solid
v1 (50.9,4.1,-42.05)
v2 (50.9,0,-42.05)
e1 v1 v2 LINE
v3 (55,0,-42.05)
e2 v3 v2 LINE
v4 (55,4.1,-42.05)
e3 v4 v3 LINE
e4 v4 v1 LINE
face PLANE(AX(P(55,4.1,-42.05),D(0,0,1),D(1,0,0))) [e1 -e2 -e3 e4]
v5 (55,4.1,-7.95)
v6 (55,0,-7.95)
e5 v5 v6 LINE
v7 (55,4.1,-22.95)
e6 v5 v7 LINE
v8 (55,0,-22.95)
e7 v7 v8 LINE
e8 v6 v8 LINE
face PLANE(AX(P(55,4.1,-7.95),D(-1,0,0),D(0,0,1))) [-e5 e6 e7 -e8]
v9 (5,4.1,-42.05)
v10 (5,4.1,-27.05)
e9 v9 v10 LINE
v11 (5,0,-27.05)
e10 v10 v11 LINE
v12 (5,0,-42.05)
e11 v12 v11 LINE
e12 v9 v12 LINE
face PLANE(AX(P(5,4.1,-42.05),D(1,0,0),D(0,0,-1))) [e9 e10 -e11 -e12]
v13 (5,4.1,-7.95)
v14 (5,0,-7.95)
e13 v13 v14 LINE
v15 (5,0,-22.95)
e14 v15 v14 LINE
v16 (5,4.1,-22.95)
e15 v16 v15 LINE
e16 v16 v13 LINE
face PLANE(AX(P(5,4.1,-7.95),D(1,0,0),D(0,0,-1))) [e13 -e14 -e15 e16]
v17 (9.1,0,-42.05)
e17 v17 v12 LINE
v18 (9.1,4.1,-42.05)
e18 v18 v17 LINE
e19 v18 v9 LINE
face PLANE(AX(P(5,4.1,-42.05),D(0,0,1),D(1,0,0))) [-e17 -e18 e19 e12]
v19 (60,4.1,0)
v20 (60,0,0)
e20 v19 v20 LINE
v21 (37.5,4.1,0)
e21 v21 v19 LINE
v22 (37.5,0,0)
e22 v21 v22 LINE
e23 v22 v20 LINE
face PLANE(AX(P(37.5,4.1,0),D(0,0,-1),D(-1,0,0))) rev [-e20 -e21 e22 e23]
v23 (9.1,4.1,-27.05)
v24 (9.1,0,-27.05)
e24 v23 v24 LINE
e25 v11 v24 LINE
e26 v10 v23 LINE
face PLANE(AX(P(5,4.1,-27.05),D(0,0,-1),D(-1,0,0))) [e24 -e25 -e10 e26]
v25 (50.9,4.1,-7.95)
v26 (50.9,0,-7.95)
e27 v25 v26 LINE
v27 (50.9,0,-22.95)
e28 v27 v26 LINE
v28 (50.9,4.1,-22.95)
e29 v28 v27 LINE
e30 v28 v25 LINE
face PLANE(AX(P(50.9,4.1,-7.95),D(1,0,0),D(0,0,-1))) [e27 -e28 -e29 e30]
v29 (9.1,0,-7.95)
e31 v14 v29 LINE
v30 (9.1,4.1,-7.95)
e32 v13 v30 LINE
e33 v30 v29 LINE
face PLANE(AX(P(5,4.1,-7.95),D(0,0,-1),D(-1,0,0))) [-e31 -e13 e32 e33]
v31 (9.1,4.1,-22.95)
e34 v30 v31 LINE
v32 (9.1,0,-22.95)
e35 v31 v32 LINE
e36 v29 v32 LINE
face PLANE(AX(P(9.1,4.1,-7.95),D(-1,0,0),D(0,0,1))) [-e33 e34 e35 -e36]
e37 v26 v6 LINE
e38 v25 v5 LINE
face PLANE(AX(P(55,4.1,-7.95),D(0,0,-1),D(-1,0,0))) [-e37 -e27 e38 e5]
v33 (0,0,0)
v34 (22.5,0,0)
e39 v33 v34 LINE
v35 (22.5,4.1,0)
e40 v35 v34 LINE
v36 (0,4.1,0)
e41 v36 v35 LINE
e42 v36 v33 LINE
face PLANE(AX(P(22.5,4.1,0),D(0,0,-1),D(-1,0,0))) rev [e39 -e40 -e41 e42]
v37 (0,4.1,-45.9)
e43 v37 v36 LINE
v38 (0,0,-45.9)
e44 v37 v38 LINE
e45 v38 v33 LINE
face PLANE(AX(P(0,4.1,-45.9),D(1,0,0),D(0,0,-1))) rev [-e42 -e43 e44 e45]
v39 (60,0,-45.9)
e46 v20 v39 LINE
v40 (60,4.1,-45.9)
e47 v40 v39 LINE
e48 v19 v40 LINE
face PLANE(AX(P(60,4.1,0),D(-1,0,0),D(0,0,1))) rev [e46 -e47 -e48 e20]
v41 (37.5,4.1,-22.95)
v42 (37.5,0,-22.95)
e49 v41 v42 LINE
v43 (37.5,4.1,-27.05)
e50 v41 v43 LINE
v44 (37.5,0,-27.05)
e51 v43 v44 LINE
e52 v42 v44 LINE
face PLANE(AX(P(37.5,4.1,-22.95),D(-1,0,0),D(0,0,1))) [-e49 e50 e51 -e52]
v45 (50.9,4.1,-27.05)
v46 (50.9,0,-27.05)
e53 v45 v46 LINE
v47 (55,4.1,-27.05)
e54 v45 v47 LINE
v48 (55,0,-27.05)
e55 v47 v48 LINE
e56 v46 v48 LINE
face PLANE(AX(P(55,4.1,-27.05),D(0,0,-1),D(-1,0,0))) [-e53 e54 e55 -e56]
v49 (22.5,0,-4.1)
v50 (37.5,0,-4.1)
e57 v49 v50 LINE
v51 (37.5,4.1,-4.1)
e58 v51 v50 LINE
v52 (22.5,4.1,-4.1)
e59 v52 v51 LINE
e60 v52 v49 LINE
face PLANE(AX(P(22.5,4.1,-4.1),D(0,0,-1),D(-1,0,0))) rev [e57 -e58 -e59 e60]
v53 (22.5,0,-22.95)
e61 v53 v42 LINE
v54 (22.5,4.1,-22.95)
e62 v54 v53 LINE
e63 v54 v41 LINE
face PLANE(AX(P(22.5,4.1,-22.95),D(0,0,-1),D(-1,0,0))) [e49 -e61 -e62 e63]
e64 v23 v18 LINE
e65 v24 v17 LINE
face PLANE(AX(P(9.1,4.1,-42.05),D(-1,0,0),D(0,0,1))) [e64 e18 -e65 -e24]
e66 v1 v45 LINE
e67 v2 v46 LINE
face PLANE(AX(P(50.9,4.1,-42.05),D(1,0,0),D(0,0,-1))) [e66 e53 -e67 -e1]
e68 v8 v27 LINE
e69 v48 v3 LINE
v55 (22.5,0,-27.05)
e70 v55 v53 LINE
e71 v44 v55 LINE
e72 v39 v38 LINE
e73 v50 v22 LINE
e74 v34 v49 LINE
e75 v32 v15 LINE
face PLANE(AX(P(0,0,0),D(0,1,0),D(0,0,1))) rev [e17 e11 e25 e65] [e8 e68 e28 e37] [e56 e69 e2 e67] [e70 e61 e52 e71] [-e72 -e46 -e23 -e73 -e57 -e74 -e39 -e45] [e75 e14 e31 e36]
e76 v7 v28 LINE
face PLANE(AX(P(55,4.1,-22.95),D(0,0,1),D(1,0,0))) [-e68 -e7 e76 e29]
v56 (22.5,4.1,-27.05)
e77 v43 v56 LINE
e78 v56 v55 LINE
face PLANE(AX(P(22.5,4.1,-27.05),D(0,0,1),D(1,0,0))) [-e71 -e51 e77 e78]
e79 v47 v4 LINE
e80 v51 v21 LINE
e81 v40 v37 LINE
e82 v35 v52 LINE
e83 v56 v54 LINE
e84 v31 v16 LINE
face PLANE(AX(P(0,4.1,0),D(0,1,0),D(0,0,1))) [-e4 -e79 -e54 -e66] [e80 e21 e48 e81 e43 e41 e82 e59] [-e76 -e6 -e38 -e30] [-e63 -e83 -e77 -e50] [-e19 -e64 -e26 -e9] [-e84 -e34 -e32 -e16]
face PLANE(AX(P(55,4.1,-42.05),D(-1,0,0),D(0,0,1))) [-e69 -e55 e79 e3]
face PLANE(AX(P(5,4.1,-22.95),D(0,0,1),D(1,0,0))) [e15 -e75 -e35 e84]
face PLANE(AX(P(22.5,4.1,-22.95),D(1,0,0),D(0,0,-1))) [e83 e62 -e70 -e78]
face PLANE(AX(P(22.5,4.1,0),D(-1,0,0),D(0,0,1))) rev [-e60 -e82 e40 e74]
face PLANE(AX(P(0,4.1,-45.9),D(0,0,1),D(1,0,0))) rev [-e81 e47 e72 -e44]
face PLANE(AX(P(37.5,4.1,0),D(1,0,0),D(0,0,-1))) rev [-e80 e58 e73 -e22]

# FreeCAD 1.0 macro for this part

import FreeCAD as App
import Part
import Sketcher
from FreeCAD import Vector

doc = App.newDocument("Part")
body = doc.addObject("PartDesign::Body", "Body")

sketch1 = body.newObject("Sketcher::SketchObject", "Sketch")
sketch1.AttachmentSupport = (doc.getObject("XZ_Plane"), [""])
sketch1.MapMode = "FlatFace"
sketch1.addGeometry(Part.LineSegment(Vector(0, -45.9, 0), Vector(0, 0, 0)), False)
sketch1.addGeometry(Part.LineSegment(Vector(0, 0, 0), Vector(22.5, 0, 0)), False)
sketch1.addGeometry(Part.LineSegment(Vector(22.5, 0, 0), Vector(22.5, -4.1, 0)), False)
sketch1.addGeometry(Part.LineSegment(Vector(22.5, -4.1, 0), Vector(37.5, -4.1, 0)), False)
sketch1.addGeometry(Part.LineSegment(Vector(37.5, -4.1, 0), Vector(37.5, 0, 0)), False)
sketch1.addGeometry(Part.LineSegment(Vector(37.5, 0, 0), Vector(60, 0, 0)), False)
sketch1.addGeometry(Part.LineSegment(Vector(60, 0, 0), Vector(60, -45.9, 0)), False)
sketch1.addGeometry(Part.LineSegment(Vector(60, -45.9, 0), Vector(0, -45.9, 0)), False)
sketch1.addGeometry(Part.LineSegment(Vector(9.1, -8, 0), Vector(5, -8, 0)), False)
sketch1.addGeometry(Part.LineSegment(Vector(5, -8, 0), Vector(5, -22.9, 0)), False)
sketch1.addGeometry(Part.LineSegment(Vector(5, -22.9, 0), Vector(9.1, -22.9, 0)), False)
sketch1.addGeometry(Part.LineSegment(Vector(9.1, -22.9, 0), Vector(9.1, -8, 0)), False)
sketch1.addGeometry(Part.LineSegment(Vector(55, -8, 0), Vector(50.9, -8, 0)), False)
sketch1.addGeometry(Part.LineSegment(Vector(50.9, -8, 0), Vector(50.9, -22.9, 0)), False)
sketch1.addGeometry(Part.LineSegment(Vector(50.9, -22.9, 0), Vector(55, -22.9, 0)), False)
sketch1.addGeometry(Part.LineSegment(Vector(55, -22.9, 0), Vector(55, -8, 0)), False)
sketch1.addGeometry(Part.LineSegment(Vector(9.1, -27.1, 0), Vector(5, -27.1, 0)), False)
sketch1.addGeometry(Part.LineSegment(Vector(5, -27.1, 0), Vector(5, -42, 0)), False)
sketch1.addGeometry(Part.LineSegment(Vector(5, -42, 0), Vector(9.1, -42, 0)), False)
sketch1.addGeometry(Part.LineSegment(Vector(9.1, -42, 0), Vector(9.1, -27.1, 0)), False)
sketch1.addGeometry(Part.LineSegment(Vector(37.5, -22.9, 0), Vector(22.5, -22.9, 0)), False)
sketch1.addGeometry(Part.LineSegment(Vector(22.5, -22.9, 0), Vector(22.5, -27.1, 0)), False)
sketch1.addGeometry(Part.LineSegment(Vector(22.5, -27.1, 0), Vector(37.5, -27.1, 0)), False)
sketch1.addGeometry(Part.LineSegment(Vector(37.5, -27.1, 0), Vector(37.5, -22.9, 0)), False)
sketch1.addGeometry(Part.LineSegment(Vector(55, -27.1, 0), Vector(50.9, -27.1, 0)), False)
sketch1.addGeometry(Part.LineSegment(Vector(50.9, -27.1, 0), Vector(50.9, -42, 0)), False)
sketch1.addGeometry(Part.LineSegment(Vector(50.9, -42, 0), Vector(55, -42, 0)), False)
sketch1.addGeometry(Part.LineSegment(Vector(55, -42, 0), Vector(55, -27.1, 0)), False)
sketch1.addConstraint(Sketcher.Constraint("Coincident", 0, 2, 1, 1))
sketch1.addConstraint(Sketcher.Constraint("Coincident", 1, 2, 2, 1))
sketch1.addConstraint(Sketcher.Constraint("Coincident", 2, 2, 3, 1))
sketch1.addConstraint(Sketcher.Constraint("Coincident", 3, 2, 4, 1))
sketch1.addConstraint(Sketcher.Constraint("Coincident", 4, 2, 5, 1))
sketch1.addConstraint(Sketcher.Constraint("Coincident", 5, 2, 6, 1))
sketch1.addConstraint(Sketcher.Constraint("Coincident", 6, 2, 7, 1))
sketch1.addConstraint(Sketcher.Constraint("Coincident", 7, 2, 0, 1))
sketch1.addConstraint(Sketcher.Constraint("Coincident", 8, 2, 9, 1))
sketch1.addConstraint(Sketcher.Constraint("Coincident", 9, 2, 10, 1))
sketch1.addConstraint(Sketcher.Constraint("Coincident", 10, 2, 11, 1))
sketch1.addConstraint(Sketcher.Constraint("Coincident", 11, 2, 8, 1))
sketch1.addConstraint(Sketcher.Constraint("Coincident", 12, 2, 13, 1))
sketch1.addConstraint(Sketcher.Constraint("Coincident", 13, 2, 14, 1))
sketch1.addConstraint(Sketcher.Constraint("Coincident", 14, 2, 15, 1))
sketch1.addConstraint(Sketcher.Constraint("Coincident", 15, 2, 12, 1))
sketch1.addConstraint(Sketcher.Constraint("Coincident", 16, 2, 17, 1))
sketch1.addConstraint(Sketcher.Constraint("Coincident", 17, 2, 18, 1))
sketch1.addConstraint(Sketcher.Constraint("Coincident", 18, 2, 19, 1))
sketch1.addConstraint(Sketcher.Constraint("Coincident", 19, 2, 16, 1))
sketch1.addConstraint(Sketcher.Constraint("Coincident", 20, 2, 21, 1))
sketch1.addConstraint(Sketcher.Constraint("Coincident", 21, 2, 22, 1))
sketch1.addConstraint(Sketcher.Constraint("Coincident", 22, 2, 23, 1))
sketch1.addConstraint(Sketcher.Constraint("Coincident", 23, 2, 20, 1))
sketch1.addConstraint(Sketcher.Constraint("Coincident", 24, 2, 25, 1))
sketch1.addConstraint(Sketcher.Constraint("Coincident", 25, 2, 26, 1))
sketch1.addConstraint(Sketcher.Constraint("Coincident", 26, 2, 27, 1))
sketch1.addConstraint(Sketcher.Constraint("Coincident", 27, 2, 24, 1))
sketch1.addConstraint(Sketcher.Constraint("Vertical", 0))
sketch1.addConstraint(Sketcher.Constraint("Horizontal", 1))
sketch1.addConstraint(Sketcher.Constraint("Vertical", 2))
sketch1.addConstraint(Sketcher.Constraint("Horizontal", 3))
sketch1.addConstraint(Sketcher.Constraint("Vertical", 4))
sketch1.addConstraint(Sketcher.Constraint("Horizontal", 5))
sketch1.addConstraint(Sketcher.Constraint("Vertical", 6))
sketch1.addConstraint(Sketcher.Constraint("Horizontal", 7))
sketch1.addConstraint(Sketcher.Constraint("Horizontal", 8))
sketch1.addConstraint(Sketcher.Constraint("Vertical", 9))
sketch1.addConstraint(Sketcher.Constraint("Horizontal", 10))
sketch1.addConstraint(Sketcher.Constraint("Vertical", 11))
sketch1.addConstraint(Sketcher.Constraint("Horizontal", 12))
sketch1.addConstraint(Sketcher.Constraint("Vertical", 13))
sketch1.addConstraint(Sketcher.Constraint("Horizontal", 14))
sketch1.addConstraint(Sketcher.Constraint("Vertical", 15))
sketch1.addConstraint(Sketcher.Constraint("Horizontal", 16))
sketch1.addConstraint(Sketcher.Constraint("Vertical", 17))
sketch1.addConstraint(Sketcher.Constraint("Horizontal", 18))
sketch1.addConstraint(Sketcher.Constraint("Vertical", 19))
sketch1.addConstraint(Sketcher.Constraint("Horizontal", 20))
sketch1.addConstraint(Sketcher.Constraint("Vertical", 21))
sketch1.addConstraint(Sketcher.Constraint("Horizontal", 22))
sketch1.addConstraint(Sketcher.Constraint("Vertical", 23))
sketch1.addConstraint(Sketcher.Constraint("Horizontal", 24))
sketch1.addConstraint(Sketcher.Constraint("Vertical", 25))
sketch1.addConstraint(Sketcher.Constraint("Horizontal", 26))
sketch1.addConstraint(Sketcher.Constraint("Vertical", 27))
sketch1.addConstraint(Sketcher.Constraint("Coincident", 0, 2, -1, 1))
sketch1.addConstraint(Sketcher.Constraint("PointOnObject", 4, 2, -1))
sketch1.addConstraint(Sketcher.Constraint("Horizontal", 11, 2, 12, 2))
sketch1.addConstraint(Sketcher.Constraint("Horizontal", 10, 2, 13, 2))
sketch1.addConstraint(Sketcher.Constraint("Horizontal", 14, 2, 20, 2))
sketch1.addConstraint(Sketcher.Constraint("Horizontal", 19, 2, 21, 2))
sketch1.addConstraint(Sketcher.Constraint("Horizontal", 22, 2, 24, 2))
sketch1.addConstraint(Sketcher.Constraint("Horizontal", 18, 2, 25, 2))
sketch1.addConstraint(Sketcher.Constraint("Vertical", 9, 2, 16, 2))
sketch1.addConstraint(Sketcher.Constraint("Vertical", 11, 2, 18, 2))
sketch1.addConstraint(Sketcher.Constraint("Vertical", 2, 2, 20, 2))
sketch1.addConstraint(Sketcher.Constraint("Vertical", 4, 2, 22, 2))
sketch1.addConstraint(Sketcher.Constraint("Vertical", 13, 2, 24, 2))
sketch1.addConstraint(Sketcher.Constraint("Vertical", 15, 2, 26, 2))
sketch1.addConstraint(Sketcher.Constraint("Equal", 1, 5))
sketch1.addConstraint(Sketcher.Constraint("Equal", 10, 12))
sketch1.addConstraint(Sketcher.Constraint("Equal", 26, 2))
sketch1.addConstraint(Sketcher.Constraint("Equal", 22, 9))
sketch1.addConstraint(Sketcher.Constraint("Equal", 15, 17))
sketch1.addConstraint(Sketcher.Constraint("Equal", 4, 21))
sketch1.addConstraint(Sketcher.Constraint("DistanceX", 3, 1, 3, 2, 15.0))
sketch1.addConstraint(Sketcher.Constraint("DistanceX", 7, 2, 7, 1, 60.0))
sketch1.addConstraint(Sketcher.Constraint("DistanceX", 8, 2, 8, 1, 4.1))
sketch1.addConstraint(Sketcher.Constraint("DistanceY", 0, 1, 0, 2, 45.9))
sketch1.addConstraint(Sketcher.Constraint("DistanceX", -1, 1, 8, 2, 5.0))
sketch1.addConstraint(Sketcher.Constraint("DistanceX", -1, 1, 14, 2, 55.0))
sketch1.addConstraint(Sketcher.Constraint("DistanceY", 8, 2, -1, 1, 7.95))
pad1 = body.newObject("PartDesign::Pad", "Pad")
pad1.Profile = sketch1
pad1.Length = 4.1
pad1.Reversed = True

doc.recompute()
